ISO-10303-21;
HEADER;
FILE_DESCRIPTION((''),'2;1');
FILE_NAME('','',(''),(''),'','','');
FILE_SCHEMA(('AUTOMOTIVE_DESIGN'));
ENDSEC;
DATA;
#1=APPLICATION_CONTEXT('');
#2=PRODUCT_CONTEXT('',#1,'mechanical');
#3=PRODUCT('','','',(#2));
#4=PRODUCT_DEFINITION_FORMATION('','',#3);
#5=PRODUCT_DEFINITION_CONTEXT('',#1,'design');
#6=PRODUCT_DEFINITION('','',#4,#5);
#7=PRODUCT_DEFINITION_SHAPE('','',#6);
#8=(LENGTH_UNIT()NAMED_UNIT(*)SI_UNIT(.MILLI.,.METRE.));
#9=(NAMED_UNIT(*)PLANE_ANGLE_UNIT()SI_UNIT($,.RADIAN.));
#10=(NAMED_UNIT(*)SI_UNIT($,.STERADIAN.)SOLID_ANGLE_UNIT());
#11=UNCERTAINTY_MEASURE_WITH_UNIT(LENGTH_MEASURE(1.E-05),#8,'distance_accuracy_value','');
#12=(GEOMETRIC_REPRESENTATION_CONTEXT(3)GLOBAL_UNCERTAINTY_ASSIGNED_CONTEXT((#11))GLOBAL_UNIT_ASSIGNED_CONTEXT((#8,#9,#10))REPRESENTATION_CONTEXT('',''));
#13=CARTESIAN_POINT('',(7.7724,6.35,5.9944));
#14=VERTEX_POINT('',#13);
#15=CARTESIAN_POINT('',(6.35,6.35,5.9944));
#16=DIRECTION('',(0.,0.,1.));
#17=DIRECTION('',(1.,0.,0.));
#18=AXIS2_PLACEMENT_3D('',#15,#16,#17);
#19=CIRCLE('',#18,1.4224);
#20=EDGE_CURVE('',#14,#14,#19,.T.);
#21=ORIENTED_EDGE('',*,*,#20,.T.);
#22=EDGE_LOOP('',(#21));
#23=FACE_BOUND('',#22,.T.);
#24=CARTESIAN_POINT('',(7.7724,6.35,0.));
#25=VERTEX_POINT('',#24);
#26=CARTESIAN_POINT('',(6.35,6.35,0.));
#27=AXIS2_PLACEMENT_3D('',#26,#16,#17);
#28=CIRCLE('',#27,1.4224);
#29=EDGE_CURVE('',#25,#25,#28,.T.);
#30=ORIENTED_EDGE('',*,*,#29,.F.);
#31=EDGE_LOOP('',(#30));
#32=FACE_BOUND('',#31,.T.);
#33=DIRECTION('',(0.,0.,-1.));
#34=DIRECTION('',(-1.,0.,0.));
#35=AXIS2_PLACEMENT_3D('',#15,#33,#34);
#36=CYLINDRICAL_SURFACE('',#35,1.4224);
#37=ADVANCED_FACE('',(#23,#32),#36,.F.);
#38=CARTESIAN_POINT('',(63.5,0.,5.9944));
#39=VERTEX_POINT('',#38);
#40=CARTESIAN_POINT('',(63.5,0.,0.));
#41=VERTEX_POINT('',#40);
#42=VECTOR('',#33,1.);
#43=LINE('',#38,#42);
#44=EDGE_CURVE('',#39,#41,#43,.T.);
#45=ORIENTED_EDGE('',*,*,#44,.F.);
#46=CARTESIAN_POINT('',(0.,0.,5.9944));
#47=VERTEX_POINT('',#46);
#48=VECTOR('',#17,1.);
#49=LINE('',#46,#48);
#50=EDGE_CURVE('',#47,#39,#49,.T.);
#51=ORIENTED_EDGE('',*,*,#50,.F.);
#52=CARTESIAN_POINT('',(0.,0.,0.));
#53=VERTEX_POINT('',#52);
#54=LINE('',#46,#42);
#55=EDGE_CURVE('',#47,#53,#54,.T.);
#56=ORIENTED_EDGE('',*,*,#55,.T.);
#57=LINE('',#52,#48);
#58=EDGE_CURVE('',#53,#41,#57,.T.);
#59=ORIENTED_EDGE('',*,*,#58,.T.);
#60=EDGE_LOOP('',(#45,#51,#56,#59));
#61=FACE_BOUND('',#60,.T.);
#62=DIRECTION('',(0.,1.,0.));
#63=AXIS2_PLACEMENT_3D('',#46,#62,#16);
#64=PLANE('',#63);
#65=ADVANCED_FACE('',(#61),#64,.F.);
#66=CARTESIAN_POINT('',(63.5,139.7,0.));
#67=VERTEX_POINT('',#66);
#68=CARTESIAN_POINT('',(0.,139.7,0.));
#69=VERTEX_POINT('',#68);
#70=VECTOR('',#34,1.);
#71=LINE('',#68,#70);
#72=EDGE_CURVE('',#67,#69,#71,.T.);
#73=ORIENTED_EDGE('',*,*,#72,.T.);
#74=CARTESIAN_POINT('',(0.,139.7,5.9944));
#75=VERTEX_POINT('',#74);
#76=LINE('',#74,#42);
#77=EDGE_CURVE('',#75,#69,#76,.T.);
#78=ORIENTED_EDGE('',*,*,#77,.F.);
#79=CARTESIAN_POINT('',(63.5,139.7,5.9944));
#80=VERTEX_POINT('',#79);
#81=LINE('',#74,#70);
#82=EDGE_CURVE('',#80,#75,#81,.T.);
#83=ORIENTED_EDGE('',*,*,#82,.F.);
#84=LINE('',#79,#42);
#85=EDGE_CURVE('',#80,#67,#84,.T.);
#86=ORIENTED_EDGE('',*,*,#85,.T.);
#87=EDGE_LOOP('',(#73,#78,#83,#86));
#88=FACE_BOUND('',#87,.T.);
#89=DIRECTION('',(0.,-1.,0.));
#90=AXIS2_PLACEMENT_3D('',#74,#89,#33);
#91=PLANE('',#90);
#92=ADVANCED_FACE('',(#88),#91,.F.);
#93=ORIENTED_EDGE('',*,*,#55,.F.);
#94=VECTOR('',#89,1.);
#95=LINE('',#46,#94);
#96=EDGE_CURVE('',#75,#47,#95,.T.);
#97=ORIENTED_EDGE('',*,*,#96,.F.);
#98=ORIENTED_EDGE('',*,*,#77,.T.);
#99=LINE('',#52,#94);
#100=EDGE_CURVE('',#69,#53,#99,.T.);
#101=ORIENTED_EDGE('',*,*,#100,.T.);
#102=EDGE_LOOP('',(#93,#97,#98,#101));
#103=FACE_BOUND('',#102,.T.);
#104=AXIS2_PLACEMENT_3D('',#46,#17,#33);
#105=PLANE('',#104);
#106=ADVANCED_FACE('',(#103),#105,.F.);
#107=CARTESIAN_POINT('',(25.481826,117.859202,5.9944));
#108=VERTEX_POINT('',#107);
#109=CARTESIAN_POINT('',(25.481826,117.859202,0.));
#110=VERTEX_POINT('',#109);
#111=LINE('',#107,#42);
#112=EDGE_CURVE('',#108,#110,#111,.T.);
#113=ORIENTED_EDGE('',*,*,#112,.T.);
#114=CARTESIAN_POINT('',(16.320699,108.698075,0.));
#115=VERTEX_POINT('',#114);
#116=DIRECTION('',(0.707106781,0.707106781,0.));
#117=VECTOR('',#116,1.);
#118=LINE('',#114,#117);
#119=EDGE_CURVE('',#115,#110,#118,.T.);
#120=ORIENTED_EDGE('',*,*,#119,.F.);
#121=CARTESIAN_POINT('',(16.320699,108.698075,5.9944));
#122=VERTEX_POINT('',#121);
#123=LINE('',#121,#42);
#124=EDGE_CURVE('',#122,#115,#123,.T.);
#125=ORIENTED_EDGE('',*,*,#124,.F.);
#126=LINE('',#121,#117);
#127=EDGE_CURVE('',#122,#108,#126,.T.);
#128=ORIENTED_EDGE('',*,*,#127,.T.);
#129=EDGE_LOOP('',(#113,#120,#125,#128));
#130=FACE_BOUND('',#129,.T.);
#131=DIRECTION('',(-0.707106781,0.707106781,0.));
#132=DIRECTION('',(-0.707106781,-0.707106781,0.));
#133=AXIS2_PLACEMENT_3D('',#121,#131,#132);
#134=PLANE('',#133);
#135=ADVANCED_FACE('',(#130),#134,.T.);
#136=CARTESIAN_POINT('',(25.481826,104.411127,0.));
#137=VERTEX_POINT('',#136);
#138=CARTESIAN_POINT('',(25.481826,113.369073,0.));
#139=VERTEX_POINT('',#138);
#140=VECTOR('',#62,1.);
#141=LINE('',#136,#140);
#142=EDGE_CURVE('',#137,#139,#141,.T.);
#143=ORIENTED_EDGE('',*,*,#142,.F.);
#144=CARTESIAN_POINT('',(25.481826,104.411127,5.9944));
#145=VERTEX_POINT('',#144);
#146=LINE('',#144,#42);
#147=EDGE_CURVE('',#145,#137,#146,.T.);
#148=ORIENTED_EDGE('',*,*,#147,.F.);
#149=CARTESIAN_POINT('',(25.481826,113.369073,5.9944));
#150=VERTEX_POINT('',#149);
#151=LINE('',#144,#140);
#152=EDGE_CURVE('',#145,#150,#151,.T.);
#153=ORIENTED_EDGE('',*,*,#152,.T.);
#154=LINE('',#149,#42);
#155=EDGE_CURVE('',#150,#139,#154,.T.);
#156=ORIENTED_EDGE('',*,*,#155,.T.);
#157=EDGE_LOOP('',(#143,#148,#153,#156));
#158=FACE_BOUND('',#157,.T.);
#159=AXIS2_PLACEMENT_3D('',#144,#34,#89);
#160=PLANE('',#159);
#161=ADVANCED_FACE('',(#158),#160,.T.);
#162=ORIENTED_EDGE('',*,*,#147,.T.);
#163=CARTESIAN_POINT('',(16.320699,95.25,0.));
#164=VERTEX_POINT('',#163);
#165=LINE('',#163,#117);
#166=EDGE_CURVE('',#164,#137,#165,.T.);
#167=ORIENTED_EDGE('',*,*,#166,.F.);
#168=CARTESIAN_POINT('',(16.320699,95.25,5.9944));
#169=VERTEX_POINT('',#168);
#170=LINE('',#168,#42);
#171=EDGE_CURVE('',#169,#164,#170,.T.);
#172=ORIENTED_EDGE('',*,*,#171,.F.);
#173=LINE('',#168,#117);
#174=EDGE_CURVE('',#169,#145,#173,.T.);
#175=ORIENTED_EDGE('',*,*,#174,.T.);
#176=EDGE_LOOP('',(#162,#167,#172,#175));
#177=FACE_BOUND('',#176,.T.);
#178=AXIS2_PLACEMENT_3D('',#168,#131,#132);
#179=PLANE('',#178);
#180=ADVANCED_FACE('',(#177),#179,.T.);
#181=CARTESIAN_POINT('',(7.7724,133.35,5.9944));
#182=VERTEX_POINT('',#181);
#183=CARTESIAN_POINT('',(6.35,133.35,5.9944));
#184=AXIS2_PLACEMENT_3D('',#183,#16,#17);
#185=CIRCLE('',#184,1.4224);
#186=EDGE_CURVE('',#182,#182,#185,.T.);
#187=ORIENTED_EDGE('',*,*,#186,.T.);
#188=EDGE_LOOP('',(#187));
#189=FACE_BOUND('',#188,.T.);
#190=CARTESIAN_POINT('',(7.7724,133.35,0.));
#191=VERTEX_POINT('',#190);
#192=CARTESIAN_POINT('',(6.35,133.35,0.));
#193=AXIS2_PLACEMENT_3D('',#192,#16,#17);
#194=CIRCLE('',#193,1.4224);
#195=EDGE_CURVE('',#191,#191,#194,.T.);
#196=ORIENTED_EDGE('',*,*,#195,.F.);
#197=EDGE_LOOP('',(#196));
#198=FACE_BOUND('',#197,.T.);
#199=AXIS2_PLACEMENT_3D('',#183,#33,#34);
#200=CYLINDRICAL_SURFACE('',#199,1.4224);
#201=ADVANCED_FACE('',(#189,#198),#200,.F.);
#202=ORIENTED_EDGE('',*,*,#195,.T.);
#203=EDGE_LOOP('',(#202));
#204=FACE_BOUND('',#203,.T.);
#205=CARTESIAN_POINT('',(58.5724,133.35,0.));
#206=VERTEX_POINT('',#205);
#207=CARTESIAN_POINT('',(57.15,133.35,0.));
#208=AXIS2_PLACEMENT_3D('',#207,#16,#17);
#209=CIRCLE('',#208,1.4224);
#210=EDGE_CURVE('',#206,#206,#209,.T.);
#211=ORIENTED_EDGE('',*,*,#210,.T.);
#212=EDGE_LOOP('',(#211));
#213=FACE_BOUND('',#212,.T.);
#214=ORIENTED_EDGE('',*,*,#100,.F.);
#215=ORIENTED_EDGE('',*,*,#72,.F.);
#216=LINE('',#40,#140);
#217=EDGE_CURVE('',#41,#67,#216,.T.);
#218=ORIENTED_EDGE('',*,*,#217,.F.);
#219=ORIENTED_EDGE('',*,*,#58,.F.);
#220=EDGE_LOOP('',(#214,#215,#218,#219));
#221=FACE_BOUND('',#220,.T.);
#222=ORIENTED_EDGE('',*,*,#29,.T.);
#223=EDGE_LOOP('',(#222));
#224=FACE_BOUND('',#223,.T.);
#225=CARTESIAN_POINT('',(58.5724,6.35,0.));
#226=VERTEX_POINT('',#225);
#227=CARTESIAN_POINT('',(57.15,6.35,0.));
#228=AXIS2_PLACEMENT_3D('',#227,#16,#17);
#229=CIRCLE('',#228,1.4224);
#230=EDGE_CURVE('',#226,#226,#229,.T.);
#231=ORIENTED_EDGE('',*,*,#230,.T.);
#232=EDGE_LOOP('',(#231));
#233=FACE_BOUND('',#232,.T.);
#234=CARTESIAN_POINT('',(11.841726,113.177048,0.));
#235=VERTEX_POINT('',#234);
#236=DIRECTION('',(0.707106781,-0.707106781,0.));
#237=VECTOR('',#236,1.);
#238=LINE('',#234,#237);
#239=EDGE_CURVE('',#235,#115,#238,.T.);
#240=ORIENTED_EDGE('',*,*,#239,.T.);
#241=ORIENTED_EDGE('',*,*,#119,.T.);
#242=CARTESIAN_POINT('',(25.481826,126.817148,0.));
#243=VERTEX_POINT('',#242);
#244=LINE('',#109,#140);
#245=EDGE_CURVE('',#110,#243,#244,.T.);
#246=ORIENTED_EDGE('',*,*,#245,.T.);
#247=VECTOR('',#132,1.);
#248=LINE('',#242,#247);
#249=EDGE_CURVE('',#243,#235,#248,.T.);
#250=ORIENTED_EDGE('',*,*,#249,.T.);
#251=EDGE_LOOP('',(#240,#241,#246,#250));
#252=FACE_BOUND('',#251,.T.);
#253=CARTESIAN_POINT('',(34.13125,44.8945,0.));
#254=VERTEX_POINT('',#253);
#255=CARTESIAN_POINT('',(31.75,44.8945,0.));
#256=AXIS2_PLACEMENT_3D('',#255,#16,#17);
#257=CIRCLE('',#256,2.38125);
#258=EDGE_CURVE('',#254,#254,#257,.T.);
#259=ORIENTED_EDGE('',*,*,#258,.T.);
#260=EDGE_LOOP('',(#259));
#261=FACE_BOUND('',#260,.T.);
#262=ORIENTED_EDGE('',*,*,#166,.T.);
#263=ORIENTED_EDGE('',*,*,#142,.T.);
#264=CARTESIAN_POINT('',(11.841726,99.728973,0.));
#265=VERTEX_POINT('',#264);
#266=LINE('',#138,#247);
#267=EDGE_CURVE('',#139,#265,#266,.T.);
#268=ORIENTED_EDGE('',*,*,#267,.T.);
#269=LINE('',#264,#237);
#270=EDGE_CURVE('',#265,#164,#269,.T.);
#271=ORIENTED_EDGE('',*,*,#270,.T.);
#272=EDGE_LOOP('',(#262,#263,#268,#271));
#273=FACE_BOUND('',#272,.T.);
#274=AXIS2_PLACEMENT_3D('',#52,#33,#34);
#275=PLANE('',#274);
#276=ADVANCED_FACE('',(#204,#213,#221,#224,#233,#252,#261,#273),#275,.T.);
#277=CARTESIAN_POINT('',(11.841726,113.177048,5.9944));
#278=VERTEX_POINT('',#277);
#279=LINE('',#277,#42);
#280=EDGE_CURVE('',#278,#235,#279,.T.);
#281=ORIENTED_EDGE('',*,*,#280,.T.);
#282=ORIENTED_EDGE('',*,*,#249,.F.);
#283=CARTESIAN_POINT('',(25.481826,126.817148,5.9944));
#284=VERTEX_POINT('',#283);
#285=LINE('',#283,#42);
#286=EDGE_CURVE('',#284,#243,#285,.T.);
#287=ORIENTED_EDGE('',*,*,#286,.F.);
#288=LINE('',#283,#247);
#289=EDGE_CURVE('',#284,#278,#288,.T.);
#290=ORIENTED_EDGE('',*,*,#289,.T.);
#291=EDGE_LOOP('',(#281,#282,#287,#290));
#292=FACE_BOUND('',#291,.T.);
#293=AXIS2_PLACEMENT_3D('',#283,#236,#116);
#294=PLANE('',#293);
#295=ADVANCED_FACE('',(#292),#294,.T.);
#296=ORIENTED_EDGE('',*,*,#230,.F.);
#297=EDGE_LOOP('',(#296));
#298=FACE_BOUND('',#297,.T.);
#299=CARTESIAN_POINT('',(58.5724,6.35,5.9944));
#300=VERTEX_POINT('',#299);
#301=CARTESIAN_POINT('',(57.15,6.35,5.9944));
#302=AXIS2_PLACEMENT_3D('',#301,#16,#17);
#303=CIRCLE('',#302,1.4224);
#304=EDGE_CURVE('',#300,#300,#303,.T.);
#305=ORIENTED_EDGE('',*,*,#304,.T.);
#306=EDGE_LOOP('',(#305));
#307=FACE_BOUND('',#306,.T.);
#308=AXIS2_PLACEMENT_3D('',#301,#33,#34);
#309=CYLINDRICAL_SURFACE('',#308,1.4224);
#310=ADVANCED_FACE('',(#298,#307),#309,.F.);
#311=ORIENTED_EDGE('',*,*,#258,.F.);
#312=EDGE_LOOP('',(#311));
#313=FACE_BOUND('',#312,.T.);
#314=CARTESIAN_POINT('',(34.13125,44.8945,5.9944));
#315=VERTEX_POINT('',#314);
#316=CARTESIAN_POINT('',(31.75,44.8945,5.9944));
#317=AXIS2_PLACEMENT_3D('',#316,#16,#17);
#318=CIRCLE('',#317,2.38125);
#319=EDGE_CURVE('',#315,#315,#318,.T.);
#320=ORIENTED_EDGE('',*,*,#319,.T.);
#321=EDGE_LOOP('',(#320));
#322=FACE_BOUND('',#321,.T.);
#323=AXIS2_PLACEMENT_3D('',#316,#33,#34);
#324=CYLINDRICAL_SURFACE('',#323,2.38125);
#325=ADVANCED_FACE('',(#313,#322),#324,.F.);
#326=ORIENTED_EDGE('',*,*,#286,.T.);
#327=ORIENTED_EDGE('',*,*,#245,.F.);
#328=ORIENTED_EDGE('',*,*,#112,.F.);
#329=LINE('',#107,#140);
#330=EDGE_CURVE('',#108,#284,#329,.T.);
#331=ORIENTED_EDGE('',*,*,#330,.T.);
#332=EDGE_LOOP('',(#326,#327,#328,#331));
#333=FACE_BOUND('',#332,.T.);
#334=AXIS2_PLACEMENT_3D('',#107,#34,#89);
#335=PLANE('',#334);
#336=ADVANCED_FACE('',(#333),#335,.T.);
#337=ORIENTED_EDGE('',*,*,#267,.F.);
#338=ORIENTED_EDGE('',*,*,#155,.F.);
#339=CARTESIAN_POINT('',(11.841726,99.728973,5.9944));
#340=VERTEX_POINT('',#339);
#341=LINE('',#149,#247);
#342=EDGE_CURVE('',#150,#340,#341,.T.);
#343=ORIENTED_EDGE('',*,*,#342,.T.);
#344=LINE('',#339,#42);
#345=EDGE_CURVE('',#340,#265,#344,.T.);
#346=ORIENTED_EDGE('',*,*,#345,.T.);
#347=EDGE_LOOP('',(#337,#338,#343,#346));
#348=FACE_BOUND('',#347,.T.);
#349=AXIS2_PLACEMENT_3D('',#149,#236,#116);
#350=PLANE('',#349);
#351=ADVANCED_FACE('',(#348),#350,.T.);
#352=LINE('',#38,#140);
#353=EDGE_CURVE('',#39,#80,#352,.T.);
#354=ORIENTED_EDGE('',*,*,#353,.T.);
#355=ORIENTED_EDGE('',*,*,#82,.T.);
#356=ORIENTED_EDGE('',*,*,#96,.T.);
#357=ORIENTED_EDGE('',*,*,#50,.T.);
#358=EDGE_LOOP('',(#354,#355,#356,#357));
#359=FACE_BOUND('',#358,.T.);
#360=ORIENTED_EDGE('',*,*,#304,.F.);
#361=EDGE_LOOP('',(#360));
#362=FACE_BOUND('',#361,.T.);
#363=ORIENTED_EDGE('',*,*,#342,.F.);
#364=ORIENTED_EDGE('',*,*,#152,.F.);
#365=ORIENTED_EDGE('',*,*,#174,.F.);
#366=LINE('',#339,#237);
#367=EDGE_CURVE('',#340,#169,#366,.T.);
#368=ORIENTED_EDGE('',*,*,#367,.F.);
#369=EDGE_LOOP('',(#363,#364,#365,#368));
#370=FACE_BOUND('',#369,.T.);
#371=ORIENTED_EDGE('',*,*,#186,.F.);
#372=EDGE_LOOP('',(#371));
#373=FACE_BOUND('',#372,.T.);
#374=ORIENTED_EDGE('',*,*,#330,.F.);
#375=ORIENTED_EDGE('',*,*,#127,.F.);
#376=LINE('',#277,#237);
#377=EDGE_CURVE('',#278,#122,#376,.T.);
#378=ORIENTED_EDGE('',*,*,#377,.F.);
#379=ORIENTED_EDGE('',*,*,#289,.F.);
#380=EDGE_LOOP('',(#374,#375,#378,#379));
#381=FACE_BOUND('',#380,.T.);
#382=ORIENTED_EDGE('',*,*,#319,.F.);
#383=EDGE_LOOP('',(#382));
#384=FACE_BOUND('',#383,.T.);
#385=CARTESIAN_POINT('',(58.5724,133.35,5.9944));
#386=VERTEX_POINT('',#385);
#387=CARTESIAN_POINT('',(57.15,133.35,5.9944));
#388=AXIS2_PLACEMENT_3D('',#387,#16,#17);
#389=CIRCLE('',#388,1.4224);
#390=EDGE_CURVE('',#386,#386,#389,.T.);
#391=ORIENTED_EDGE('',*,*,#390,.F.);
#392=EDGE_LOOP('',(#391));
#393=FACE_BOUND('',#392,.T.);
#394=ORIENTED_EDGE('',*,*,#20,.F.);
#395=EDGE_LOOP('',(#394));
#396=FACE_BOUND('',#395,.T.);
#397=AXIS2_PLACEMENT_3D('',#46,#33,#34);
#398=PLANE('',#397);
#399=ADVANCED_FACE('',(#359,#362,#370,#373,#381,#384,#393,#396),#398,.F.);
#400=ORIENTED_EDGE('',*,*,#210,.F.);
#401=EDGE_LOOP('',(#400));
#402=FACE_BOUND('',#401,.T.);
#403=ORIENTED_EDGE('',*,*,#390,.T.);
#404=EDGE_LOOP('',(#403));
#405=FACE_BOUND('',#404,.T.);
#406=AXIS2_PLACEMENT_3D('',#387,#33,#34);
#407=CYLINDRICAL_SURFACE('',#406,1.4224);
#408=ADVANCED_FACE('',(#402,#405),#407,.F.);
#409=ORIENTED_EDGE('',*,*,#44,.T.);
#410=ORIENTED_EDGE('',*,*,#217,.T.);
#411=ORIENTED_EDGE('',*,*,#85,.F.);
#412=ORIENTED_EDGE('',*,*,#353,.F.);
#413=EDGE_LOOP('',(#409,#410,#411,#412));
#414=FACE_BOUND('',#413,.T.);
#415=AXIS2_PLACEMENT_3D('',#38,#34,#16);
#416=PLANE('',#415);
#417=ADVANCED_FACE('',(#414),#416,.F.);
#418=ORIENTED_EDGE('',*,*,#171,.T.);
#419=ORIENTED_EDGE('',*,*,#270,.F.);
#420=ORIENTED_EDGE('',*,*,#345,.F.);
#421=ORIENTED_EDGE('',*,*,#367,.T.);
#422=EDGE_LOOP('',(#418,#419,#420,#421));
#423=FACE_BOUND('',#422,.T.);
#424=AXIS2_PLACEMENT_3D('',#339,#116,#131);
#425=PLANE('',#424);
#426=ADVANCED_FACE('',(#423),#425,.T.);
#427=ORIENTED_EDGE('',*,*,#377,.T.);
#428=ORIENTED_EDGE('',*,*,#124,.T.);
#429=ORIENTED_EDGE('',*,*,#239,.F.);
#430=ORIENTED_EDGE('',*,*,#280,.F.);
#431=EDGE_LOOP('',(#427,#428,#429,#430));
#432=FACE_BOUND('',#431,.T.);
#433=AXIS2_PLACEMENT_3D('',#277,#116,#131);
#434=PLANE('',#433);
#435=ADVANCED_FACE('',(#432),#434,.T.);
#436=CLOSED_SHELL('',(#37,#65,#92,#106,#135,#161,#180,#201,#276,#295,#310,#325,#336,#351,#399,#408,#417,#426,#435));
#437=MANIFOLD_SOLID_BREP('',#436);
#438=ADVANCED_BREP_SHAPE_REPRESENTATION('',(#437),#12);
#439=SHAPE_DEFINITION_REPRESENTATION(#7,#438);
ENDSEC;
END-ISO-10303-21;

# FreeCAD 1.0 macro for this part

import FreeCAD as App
import Part
import Sketcher
from FreeCAD import Vector
Q = App.Units.Quantity

doc = App.newDocument("Part")
body = doc.addObject("PartDesign::Body", "Body")

# Sketch on XY plane
sketch1 = body.newObject("Sketcher::SketchObject", "Sketch")
sketch1.AttachmentSupport = (doc.getObject("XY_Plane"), [""])
sketch1.MapMode = "FlatFace"
sketch1.addGeometry([
    Part.LineSegment(Vector(0, 139.7, 0), Vector(0, 0, 0)),  # 0
    Part.LineSegment(Vector(0, 0, 0), Vector(63.5, 0, 0)),  # 1
    Part.LineSegment(Vector(63.5, 0, 0), Vector(63.5, 139.7, 0)),  # 2
    Part.LineSegment(Vector(63.5, 139.7, 0), Vector(0, 139.7, 0)),  # 3
    Part.Circle(Vector(6.35, 6.35, 0), Vector(0, 0, 1), 1.4224),  # 4
    Part.Circle(Vector(57.15, 6.35, 0), Vector(0, 0, 1), 1.4224),  # 5
    Part.Circle(Vector(31.75, 44.8945, 0), Vector(0, 0, 1), 2.38125),  # 6
    Part.Circle(Vector(6.35, 133.35, 0), Vector(0, 0, 1), 1.4224),  # 7
    Part.LineSegment(Vector(25.481826, 113.369073, 0), Vector(25.481826, 104.411127, 0)),  # 8
    Part.LineSegment(Vector(25.481826, 104.411127, 0), Vector(16.320699, 95.25, 0)),  # 9
    Part.LineSegment(Vector(16.320699, 95.25, 0), Vector(11.841726, 99.728973, 0)),  # 10
    Part.LineSegment(Vector(11.841726, 99.728973, 0), Vector(25.481826, 113.369073, 0)),  # 11
    Part.LineSegment(Vector(25.481826, 126.817148, 0), Vector(25.481826, 117.859202, 0)),  # 12
    Part.LineSegment(Vector(25.481826, 117.859202, 0), Vector(16.320699, 108.698075, 0)),  # 13
    Part.LineSegment(Vector(16.320699, 108.698075, 0), Vector(11.841726, 113.177048, 0)),  # 14
    Part.LineSegment(Vector(11.841726, 113.177048, 0), Vector(25.481826, 126.817148, 0)),  # 15
    Part.Circle(Vector(57.15, 133.35, 0), Vector(0, 0, 1), 1.4224),  # 16
], False)
sketch1.addConstraint([
    Sketcher.Constraint("Coincident", 0, 2, 1, 1),
    Sketcher.Constraint("Coincident", 1, 2, 2, 1),
    Sketcher.Constraint("Coincident", 2, 2, 3, 1),
    Sketcher.Constraint("Coincident", 3, 2, 0, 1),
    Sketcher.Constraint("Coincident", 8, 2, 9, 1),
    Sketcher.Constraint("Coincident", 9, 2, 10, 1),
    Sketcher.Constraint("Coincident", 10, 2, 11, 1),
    Sketcher.Constraint("Coincident", 11, 2, 8, 1),
    Sketcher.Constraint("Coincident", 12, 2, 13, 1),
    Sketcher.Constraint("Coincident", 13, 2, 14, 1),
    Sketcher.Constraint("Coincident", 14, 2, 15, 1),
    Sketcher.Constraint("Coincident", 15, 2, 12, 1),
    Sketcher.Constraint("Vertical", 0),
    Sketcher.Constraint("Horizontal", 1),
    Sketcher.Constraint("Vertical", 2),
    Sketcher.Constraint("Horizontal", 3),
    Sketcher.Constraint("Vertical", 8),
    Sketcher.Constraint("Vertical", 12),
    Sketcher.Constraint("Coincident", 0, 2, -1, 1),
    Sketcher.Constraint("Equal", 4, 5),
    Sketcher.Constraint("Equal", 5, 7),
    Sketcher.Constraint("Equal", 7, 16),
    Sketcher.Constraint("Perpendicular", 9, 10),
    Sketcher.Constraint("Perpendicular", 10, 11),
    Sketcher.Constraint("Parallel", 11, 13),
    Sketcher.Constraint("Perpendicular", 13, 14),
    Sketcher.Constraint("Perpendicular", 14, 15),
    Sketcher.Constraint("Horizontal", 4, 3, 5, 3),
    Sketcher.Constraint("Horizontal", 7, 3, 16, 3),
    Sketcher.Constraint("Vertical", 4, 3, 7, 3),
    Sketcher.Constraint("Vertical", 5, 3, 16, 3),
    Sketcher.Constraint("Vertical", 11, 2, 12, 2),
    Sketcher.Constraint("Vertical", 9, 2, 13, 2),
    Sketcher.Constraint("Vertical", 10, 2, 14, 2),
    Sketcher.Constraint("Diameter", 4, Q("0.112 in")),
    Sketcher.Constraint("Diameter", 6, Q("0.1875 in")),
    Sketcher.Constraint("DistanceX", 1, 1, 1, 2, Q("2.5 in")),
    Sketcher.Constraint("DistanceY", 0, 2, 0, 1, Q("5.5 in")),
    Sketcher.Constraint("Angle", 9, Q("-135 deg")),
    Sketcher.Constraint("DistanceX", 4, 3, 5, 3, Q("2 in")),
    Sketcher.Constraint("DistanceX", 4, 3, 6, 3, Q("1 in")),
    Sketcher.Constraint("DistanceY", 4, 3, 7, 3, Q("5 in")),
    Sketcher.Constraint("DistanceY", 9, 2, 7, 3, Q("1.5 in")),
    Sketcher.Constraint("DistanceX", -1, 1, 4, 3, Q("0.25 in")),
    Sketcher.Constraint("DistanceY", -1, 1, 4, 3, Q("0.25 in")),
    Sketcher.Constraint("DistanceY", -1, 1, 6, 3, Q("1.7675 in")),
    Sketcher.Constraint("DistanceX", -1, 1, 9, 2, Q("16.320699 mm")),
    Sketcher.Constraint("DistanceY", -1, 1, 12, 2, Q("117.859202 mm")),
    Sketcher.Constraint("DistanceX", 10, 2, 8, 2, Q("13.6401 mm")),
    Sketcher.Constraint("Distance", 9, Q("12.95579 mm")),
])
pad1 = body.newObject("PartDesign::Pad", "Pad")
pad1.Profile = sketch1
pad1.Length = Q("0.236 in")

doc.recompute()
